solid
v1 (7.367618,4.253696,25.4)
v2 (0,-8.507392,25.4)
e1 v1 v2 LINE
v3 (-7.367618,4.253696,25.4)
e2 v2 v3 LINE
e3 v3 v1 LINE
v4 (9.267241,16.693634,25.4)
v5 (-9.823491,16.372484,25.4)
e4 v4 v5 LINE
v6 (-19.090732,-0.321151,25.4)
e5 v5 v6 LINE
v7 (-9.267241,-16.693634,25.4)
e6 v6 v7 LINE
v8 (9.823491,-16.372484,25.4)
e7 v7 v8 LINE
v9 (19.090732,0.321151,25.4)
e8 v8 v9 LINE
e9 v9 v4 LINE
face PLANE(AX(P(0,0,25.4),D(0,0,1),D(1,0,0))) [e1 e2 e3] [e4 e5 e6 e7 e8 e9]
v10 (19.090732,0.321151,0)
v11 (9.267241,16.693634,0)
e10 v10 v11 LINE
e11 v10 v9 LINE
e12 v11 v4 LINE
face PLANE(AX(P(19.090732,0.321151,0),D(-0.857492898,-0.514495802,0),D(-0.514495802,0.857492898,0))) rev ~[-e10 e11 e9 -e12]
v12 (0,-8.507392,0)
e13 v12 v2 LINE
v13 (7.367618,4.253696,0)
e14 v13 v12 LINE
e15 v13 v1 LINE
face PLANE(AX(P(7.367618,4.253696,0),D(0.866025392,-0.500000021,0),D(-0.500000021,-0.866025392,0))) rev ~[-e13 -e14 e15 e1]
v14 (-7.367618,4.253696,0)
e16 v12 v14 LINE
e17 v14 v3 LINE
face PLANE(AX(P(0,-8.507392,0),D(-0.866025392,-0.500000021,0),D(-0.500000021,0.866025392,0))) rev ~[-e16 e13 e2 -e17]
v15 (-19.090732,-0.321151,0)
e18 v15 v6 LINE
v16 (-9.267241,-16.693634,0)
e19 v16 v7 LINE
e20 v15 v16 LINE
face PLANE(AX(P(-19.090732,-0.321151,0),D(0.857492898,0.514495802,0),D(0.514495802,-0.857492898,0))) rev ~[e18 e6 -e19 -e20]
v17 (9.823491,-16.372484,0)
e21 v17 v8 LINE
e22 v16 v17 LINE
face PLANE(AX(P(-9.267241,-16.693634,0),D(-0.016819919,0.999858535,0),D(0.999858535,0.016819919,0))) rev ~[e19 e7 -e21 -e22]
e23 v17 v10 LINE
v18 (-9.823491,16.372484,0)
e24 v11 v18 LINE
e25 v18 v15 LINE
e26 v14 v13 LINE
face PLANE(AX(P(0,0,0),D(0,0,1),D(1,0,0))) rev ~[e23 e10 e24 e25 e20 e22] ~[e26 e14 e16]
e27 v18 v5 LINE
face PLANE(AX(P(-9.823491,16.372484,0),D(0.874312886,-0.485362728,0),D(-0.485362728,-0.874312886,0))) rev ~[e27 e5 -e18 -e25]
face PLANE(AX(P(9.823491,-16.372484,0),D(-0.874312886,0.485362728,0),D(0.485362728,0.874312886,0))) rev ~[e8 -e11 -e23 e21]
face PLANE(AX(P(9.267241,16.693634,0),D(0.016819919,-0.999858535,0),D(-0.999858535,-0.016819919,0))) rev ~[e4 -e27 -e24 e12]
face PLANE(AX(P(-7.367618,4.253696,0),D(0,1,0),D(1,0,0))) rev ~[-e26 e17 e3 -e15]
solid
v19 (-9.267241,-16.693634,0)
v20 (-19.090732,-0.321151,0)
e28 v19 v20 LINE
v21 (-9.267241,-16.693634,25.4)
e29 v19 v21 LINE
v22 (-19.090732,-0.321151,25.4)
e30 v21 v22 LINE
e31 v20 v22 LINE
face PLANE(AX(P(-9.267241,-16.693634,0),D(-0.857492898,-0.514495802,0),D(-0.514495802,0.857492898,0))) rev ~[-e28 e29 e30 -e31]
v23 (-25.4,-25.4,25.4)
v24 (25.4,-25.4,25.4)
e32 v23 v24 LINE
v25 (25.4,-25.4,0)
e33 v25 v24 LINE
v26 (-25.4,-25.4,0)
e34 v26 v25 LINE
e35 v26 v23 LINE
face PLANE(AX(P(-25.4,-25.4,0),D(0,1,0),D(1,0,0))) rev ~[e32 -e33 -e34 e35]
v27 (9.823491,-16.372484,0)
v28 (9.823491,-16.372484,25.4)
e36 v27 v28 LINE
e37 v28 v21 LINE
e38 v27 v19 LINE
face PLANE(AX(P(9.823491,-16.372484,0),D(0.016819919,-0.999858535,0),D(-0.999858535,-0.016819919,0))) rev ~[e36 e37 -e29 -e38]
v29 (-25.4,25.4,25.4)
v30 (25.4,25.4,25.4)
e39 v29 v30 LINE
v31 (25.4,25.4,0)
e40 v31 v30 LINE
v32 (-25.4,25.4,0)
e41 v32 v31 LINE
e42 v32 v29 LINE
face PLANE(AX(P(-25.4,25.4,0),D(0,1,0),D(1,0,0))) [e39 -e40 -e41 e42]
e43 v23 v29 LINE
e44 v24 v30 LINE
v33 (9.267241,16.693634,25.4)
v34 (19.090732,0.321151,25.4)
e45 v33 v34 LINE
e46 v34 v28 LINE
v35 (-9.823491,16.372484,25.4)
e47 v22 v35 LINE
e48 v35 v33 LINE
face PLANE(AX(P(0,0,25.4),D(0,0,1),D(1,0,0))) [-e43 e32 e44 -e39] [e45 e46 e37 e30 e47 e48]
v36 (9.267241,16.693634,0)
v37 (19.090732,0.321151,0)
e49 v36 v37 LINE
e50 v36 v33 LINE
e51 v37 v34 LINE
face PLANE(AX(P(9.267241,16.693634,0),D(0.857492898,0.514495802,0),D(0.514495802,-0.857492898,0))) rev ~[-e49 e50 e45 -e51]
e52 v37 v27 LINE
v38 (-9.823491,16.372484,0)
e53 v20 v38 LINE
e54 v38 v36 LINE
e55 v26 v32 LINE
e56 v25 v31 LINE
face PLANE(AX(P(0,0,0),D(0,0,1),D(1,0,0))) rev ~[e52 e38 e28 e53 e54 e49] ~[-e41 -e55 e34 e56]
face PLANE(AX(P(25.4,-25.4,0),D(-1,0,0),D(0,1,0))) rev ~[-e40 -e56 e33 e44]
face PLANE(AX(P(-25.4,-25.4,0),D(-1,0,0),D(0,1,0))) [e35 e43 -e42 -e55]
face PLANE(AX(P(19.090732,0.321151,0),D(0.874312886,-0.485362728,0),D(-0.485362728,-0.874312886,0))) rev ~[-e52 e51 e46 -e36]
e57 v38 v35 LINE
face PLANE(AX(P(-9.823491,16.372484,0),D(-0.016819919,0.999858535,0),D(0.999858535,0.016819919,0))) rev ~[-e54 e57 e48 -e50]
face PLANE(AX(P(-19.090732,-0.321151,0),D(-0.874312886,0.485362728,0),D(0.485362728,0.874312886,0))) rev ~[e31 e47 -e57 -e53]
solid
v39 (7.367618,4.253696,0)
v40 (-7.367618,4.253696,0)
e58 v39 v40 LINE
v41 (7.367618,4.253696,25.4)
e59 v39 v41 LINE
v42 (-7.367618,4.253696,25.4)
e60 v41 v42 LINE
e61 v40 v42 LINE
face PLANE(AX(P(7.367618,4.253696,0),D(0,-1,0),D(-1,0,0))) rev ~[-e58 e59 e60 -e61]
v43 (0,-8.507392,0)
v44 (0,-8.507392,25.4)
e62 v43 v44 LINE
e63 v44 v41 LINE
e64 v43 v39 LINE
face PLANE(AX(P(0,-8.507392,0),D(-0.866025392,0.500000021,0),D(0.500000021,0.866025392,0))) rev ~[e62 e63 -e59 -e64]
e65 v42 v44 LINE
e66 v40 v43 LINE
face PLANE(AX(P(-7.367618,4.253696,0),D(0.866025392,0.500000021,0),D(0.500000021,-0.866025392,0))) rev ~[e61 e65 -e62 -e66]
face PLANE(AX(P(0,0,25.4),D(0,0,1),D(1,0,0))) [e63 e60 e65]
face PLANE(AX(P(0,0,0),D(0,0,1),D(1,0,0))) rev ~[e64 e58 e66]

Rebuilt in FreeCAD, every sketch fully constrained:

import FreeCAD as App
import Part
import Sketcher

V = App.Vector
Q = App.Units.Quantity


def add_polygon(sketch, points):
    """Adds a closed chain of lines whose ends are joined by coincident constraints."""
    first, n = sketch.GeometryCount, len(points)
    for a, b in zip(points, points[1:] + points[:1]):
        sketch.addGeometry(Part.LineSegment(App.Vector(*a, 0), App.Vector(*b, 0)), False)
    for i in range(n):
        sketch.addConstraint(Sketcher.Constraint("Coincident", first + i, 2, first + (i + 1) % n, 1))

doc = App.newDocument("Part")
body = doc.addObject("PartDesign::Body", "Body")

# Sketch on XY plane
sketch1 = body.newObject("Sketcher::SketchObject", "Sketch")
sketch1.AttachmentSupport = (doc.getObject("XY_Plane"), [""])
sketch1.MapMode = "FlatFace"
add_polygon(sketch1, [(-25.4, 25.4), (-25.4, -25.4), (25.4, -25.4), (25.4, 25.4)])  # lines 0-3
add_polygon(sketch1, [(-19.090732, -0.321151), (-9.823491, 16.372484), (9.267241, 16.693634), (19.090732, 0.321151), (9.823491, -16.372484), (-9.267241, -16.693634)])  # lines 4-9
sketch1.addConstraint([
    Sketcher.Constraint("Vertical", 0),
    Sketcher.Constraint("Horizontal", 1),
    Sketcher.Constraint("Vertical", 2),
    Sketcher.Constraint("Horizontal", 3),
    Sketcher.Constraint("Symmetric", 0, 2, 2, 2, -1, 1),
    Sketcher.Constraint("Symmetric", 4, 2, 7, 2, -1, 1),
    Sketcher.Constraint("Symmetric", 5, 2, 8, 2, -1, 1),
    Sketcher.Constraint("Symmetric", 6, 2, 9, 2, -1, 1),
    Sketcher.Constraint("Equal", 3, 0),
    Sketcher.Constraint("Equal", 4, 5),
    Sketcher.Constraint("Equal", 5, 6),
    Sketcher.Constraint("DistanceX", 1, 1, 1, 2, Q("2 in")),
    Sketcher.Constraint("DistanceX", 4, 2, -1, 1, Q("9.823491 mm")),
    Sketcher.Constraint("DistanceX", -1, 1, 5, 2, Q("9.267241 mm")),
    Sketcher.Constraint("DistanceX", -1, 1, 6, 2, Q("19.090732 mm")),
    Sketcher.Constraint("DistanceY", -1, 1, 6, 2, Q("0.321151 mm")),
])
pad1 = body.newObject("PartDesign::Pad", "Pad")
pad1.Profile = sketch1
pad1.Length = Q("1 in")
body2 = doc.addObject("PartDesign::Body", "Body001")

# Sketch on XY plane
sketch2 = body2.newObject("Sketcher::SketchObject", "Sketch001")
sketch2.AttachmentSupport = (doc.getObject("XY_Plane001"), [""])
sketch2.MapMode = "FlatFace"
add_polygon(sketch2, [(19.090732, 0.321151), (9.267241, 16.693634), (-9.823491, 16.372484), (-19.090732, -0.321151), (-9.267241, -16.693634), (9.823491, -16.372484)])  # lines 0-5
add_polygon(sketch2, [(7.367618, 4.253696), (0, -8.507392), (-7.367618, 4.253696)])  # lines 6-8
sketch2.addConstraint([
    Sketcher.Constraint("Horizontal", 8),
    Sketcher.Constraint("Symmetric", 0, 2, 3, 2, -1, 1),
    Sketcher.Constraint("Symmetric", 1, 2, 4, 2, -1, 1),
    Sketcher.Constraint("Symmetric", 2, 2, 5, 2, -1, 1),
    Sketcher.Constraint("PointOnObject", 6, 2, -2),
    Sketcher.Constraint("Equal", 0, 1),
    Sketcher.Constraint("Equal", 1, 2),
    Sketcher.Constraint("Equal", 6, 7),
    Sketcher.Constraint("Angle", 6, Q("-120.000001 deg")),
    Sketcher.Constraint("DistanceX", 8, 1, 8, 2, Q("14.735236 mm")),
    Sketcher.Constraint("DistanceX", -1, 1, 0, 2, Q("9.267241 mm")),
    Sketcher.Constraint("DistanceX", 1, 2, -1, 1, Q("9.823491 mm")),
    Sketcher.Constraint("DistanceX", 2, 2, -1, 1, Q("19.090732 mm")),
    Sketcher.Constraint("DistanceY", 2, 2, -1, 1, Q("0.321151 mm")),
    Sketcher.Constraint("DistanceY", 6, 2, 2, 2, Q("8.186241 mm")),
])
pad2 = body2.newObject("PartDesign::Pad", "Pad001")
pad2.Profile = sketch2
pad2.Length = Q("1 in")
body3 = doc.addObject("PartDesign::Body", "Body002")

# Sketch on XY plane
sketch3 = body3.newObject("Sketcher::SketchObject", "Sketch002")
sketch3.AttachmentSupport = (doc.getObject("XY_Plane002"), [""])
sketch3.MapMode = "FlatFace"
add_polygon(sketch3, [(7.367618, 4.253696), (-7.367618, 4.253696), (0, -8.507392)])  # lines 0-2
sketch3.addConstraint([
    Sketcher.Constraint("Horizontal", 0),
    Sketcher.Constraint("PointOnObject", 1, 2, -2),
    Sketcher.Constraint("Equal", 1, 2),
    Sketcher.Constraint("Angle", 1, Q("-59.999999 deg")),
    Sketcher.Constraint("DistanceX", 0, 2, 0, 1, Q("14.735236 mm")),
    Sketcher.Constraint("DistanceY", -1, 1, 0, 2, Q("4.253696 mm")),
])
pad3 = body3.newObject("PartDesign::Pad", "Pad002")
pad3.Profile = sketch3
pad3.Length = Q("1 in")

doc.recompute()
